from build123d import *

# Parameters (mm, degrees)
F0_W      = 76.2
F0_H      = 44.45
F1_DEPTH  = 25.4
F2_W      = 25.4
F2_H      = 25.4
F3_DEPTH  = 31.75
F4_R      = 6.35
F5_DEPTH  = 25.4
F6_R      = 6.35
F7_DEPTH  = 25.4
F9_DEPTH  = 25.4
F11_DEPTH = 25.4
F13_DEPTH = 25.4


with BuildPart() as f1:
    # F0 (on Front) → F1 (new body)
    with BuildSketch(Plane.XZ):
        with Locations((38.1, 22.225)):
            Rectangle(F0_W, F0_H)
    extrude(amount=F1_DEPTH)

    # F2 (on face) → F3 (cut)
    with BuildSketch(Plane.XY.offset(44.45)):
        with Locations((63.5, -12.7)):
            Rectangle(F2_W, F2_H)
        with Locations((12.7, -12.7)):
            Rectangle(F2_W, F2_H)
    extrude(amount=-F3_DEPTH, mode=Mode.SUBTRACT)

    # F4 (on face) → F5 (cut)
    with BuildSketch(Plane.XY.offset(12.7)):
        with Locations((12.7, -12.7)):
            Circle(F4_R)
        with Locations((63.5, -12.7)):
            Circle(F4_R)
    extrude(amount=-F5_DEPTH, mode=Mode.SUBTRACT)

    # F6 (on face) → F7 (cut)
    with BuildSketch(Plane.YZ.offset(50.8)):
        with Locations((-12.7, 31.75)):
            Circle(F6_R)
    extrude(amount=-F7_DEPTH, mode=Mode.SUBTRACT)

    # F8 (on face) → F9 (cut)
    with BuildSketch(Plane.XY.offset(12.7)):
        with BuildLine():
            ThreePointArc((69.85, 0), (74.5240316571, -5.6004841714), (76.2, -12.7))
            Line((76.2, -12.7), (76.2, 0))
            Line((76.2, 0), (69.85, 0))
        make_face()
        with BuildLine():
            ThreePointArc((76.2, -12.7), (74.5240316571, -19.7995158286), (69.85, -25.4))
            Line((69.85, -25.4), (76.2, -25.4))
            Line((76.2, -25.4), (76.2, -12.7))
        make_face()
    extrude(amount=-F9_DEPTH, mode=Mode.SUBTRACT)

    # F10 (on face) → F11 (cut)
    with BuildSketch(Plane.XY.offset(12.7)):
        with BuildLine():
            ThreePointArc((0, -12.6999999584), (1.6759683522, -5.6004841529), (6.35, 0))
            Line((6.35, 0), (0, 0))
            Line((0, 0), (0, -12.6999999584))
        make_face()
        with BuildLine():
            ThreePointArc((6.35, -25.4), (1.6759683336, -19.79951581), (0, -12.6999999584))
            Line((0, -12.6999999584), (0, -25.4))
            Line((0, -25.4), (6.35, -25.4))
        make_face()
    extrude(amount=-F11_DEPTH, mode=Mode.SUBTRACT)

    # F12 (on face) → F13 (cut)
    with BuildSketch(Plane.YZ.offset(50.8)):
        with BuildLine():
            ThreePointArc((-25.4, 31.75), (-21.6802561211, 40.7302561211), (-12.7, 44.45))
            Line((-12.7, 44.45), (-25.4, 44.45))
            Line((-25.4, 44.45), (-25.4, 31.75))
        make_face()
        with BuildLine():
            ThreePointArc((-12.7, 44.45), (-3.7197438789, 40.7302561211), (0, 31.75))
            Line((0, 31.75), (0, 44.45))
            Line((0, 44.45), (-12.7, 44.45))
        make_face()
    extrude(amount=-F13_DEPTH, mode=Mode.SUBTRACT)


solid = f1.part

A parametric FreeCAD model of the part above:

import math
import FreeCAD as App
import Part
import Sketcher
from FreeCAD import Vector
Q = App.Units.Quantity


def add_polygon(sketch, points):
    """Adds a closed chain of lines whose ends are joined by coincident constraints."""
    first, n = sketch.GeometryCount, len(points)
    for a, b in zip(points, points[1:] + points[:1]):
        sketch.addGeometry(Part.LineSegment(App.Vector(*a, 0), App.Vector(*b, 0)), False)
    for i in range(n):
        sketch.addConstraint(Sketcher.Constraint("Coincident", first + i, 2, first + (i + 1) % n, 1))

doc = App.newDocument("Part")
params = doc.addObject("Spreadsheet::Sheet", "Params")
for row, (alias, value) in enumerate([
    ("sketch1_width", "3 in"),
    ("sketch1_height", "1.75 in"),
    ("pad1_length", "1 in"),
    ("sketch2_width", "1 in"),
    ("pocket1_length", "1.25 in"),
    ("sketch3_diameter", "0.5 in"),
    ("pocket2_length", "1 in"),
    ("sketch4_diameter", "0.5 in"),
    ("pocket3_length", "1 in"),
    ("sketch5_height", "0.5 in"),
    ("sketch5_radius", "0.625 in"),
    ("pocket4_length", "1 in"),
    ("sketch6_height", "0.5 in"),
    ("sketch6_radius", "0.625 in"),
    ("pocket5_length", "1 in"),
    ("sketch7_radius", "0.5 in"),
    ("pocket6_length", "1 in"),
], start=1):
    params.set(f"A{row}", alias)
    params.set(f"B{row}", "=" + value)
    params.setAlias(f"B{row}", alias)

body = doc.addObject("PartDesign::Body", "Body")

# Sketch on XZ plane
sketch1 = body.newObject("Sketcher::SketchObject", "Sketch")
sketch1.AttachmentSupport = (doc.getObject("XZ_Plane"), [""])
sketch1.MapMode = "FlatFace"
add_polygon(sketch1, [(0, 44), (0, 0), (76, 0), (76, 44)])  # lines 0-3
sketch1.addConstraint(Sketcher.Constraint("Vertical", 0))
sketch1.addConstraint(Sketcher.Constraint("Horizontal", 1))
sketch1.addConstraint(Sketcher.Constraint("Vertical", 2))
sketch1.addConstraint(Sketcher.Constraint("Horizontal", 3))
sketch1.addConstraint(Sketcher.Constraint("Coincident", 0, 2, -1, 1))
sketch1.addConstraint(Sketcher.Constraint("DistanceX", 1, 1, 1, 2, Q("3 in")))
sketch1.addConstraint(Sketcher.Constraint("DistanceY", 0, 2, 0, 1, Q("1.75 in")))
sketch1.setExpression("Constraints[9]", "Params.sketch1_width")
sketch1.setExpression("Constraints[10]", "Params.sketch1_height")
pad1 = body.newObject("PartDesign::Pad", "Pad")
pad1.Profile = sketch1
pad1.setExpression("Length", "Params.pad1_length")

# Sketch on XY plane
sketch2 = body.newObject("Sketcher::SketchObject", "Sketch001")
sketch2.AttachmentSupport = (doc.getObject("XY_Plane"), [""])
sketch2.MapMode = "FlatFace"
sketch2.AttachmentOffset = App.Placement(Vector(0, 0, 1.75 * 25.4), App.Rotation())
add_polygon(sketch2, [(51, 0), (51, -25), (76, -25), (76, 0)])  # lines 0-3
add_polygon(sketch2, [(0, 0), (0, -25), (25, -25), (25, 0)])  # lines 4-7
sketch2.addConstraint(Sketcher.Constraint("Vertical", 0))
sketch2.addConstraint(Sketcher.Constraint("Horizontal", 1))
sketch2.addConstraint(Sketcher.Constraint("Vertical", 2))
sketch2.addConstraint(Sketcher.Constraint("Horizontal", 3))
sketch2.addConstraint(Sketcher.Constraint("Vertical", 4))
sketch2.addConstraint(Sketcher.Constraint("Horizontal", 5))
sketch2.addConstraint(Sketcher.Constraint("Vertical", 6))
sketch2.addConstraint(Sketcher.Constraint("Horizontal", 7))
sketch2.addConstraint(Sketcher.Constraint("Coincident", 7, 2, -1, 1))
sketch2.addConstraint(Sketcher.Constraint("PointOnObject", 2, 2, -1))
sketch2.addConstraint(Sketcher.Constraint("Horizontal", 1, 2, 4, 2))
sketch2.addConstraint(Sketcher.Constraint("Equal", 3, 5))
sketch2.addConstraint(Sketcher.Constraint("Equal", 7, 0))
sketch2.addConstraint(Sketcher.Constraint("DistanceX", 1, 1, 1, 2, Q("1 in")))
sketch2.addConstraint(Sketcher.Constraint("DistanceX", -1, 1, 0, 2, Q("2 in")))
sketch2.setExpression("Constraints[21]", "Params.sketch2_width")
pocket1 = body.newObject("PartDesign::Pocket", "Pocket")
pocket1.Profile = sketch2
pocket1.setExpression("Length", "Params.pocket1_length")

# Sketch on XY plane
sketch3 = body.newObject("Sketcher::SketchObject", "Sketch002")
sketch3.AttachmentSupport = (doc.getObject("XY_Plane"), [""])
sketch3.MapMode = "FlatFace"
sketch3.AttachmentOffset = App.Placement(Vector(0, 0, 0.5 * 25.4), App.Rotation())
sketch3.addGeometry(Part.Circle(Vector(13, -13, 0), Vector(0, 0, 1), 6), False)
sketch3.addGeometry(Part.Circle(Vector(64, -13, 0), Vector(0, 0, 1), 6), False)
sketch3.addConstraint(Sketcher.Constraint("Equal", 0, 1))
sketch3.addConstraint(Sketcher.Constraint("Horizontal", 0, 3, 1, 3))
sketch3.addConstraint(Sketcher.Constraint("Diameter", 0, Q("0.5 in")))
sketch3.addConstraint(Sketcher.Constraint("DistanceX", 0, 3, 1, 3, Q("2 in")))
sketch3.addConstraint(Sketcher.Constraint("DistanceX", -1, 1, 0, 3, Q("0.5 in")))
sketch3.addConstraint(Sketcher.Constraint("DistanceY", 0, 3, -1, 1, Q("0.5 in")))
sketch3.setExpression("Constraints[2]", "Params.sketch3_diameter")
pocket2 = body.newObject("PartDesign::Pocket", "Pocket001")
pocket2.Profile = sketch3
pocket2.setExpression("Length", "Params.pocket2_length")

# Sketch on YZ plane
sketch4 = body.newObject("Sketcher::SketchObject", "Sketch003")
sketch4.AttachmentSupport = (doc.getObject("YZ_Plane"), [""])
sketch4.MapMode = "FlatFace"
sketch4.AttachmentOffset = App.Placement(Vector(0, 0, 2 * 25.4), App.Rotation())
sketch4.addGeometry(Part.Circle(Vector(-13, 32, 0), Vector(0, 0, 1), 6), False)
sketch4.addConstraint(Sketcher.Constraint("Diameter", 0, Q("0.5 in")))
sketch4.addConstraint(Sketcher.Constraint("DistanceX", 0, 3, -1, 1, Q("0.5 in")))
sketch4.addConstraint(Sketcher.Constraint("DistanceY", -1, 1, 0, 3, Q("1.25 in")))
sketch4.setExpression("Constraints[0]", "Params.sketch4_diameter")
pocket3 = body.newObject("PartDesign::Pocket", "Pocket002")
pocket3.Profile = sketch4
pocket3.setExpression("Length", "Params.pocket3_length")

# Sketch on XY plane
sketch5 = body.newObject("Sketcher::SketchObject", "Sketch004")
sketch5.AttachmentSupport = (doc.getObject("XY_Plane"), [""])
sketch5.MapMode = "FlatFace"
sketch5.AttachmentOffset = App.Placement(Vector(0, 0, 0.5 * 25.4), App.Rotation())
sketch5.addGeometry(Part.ArcOfCircle(Part.Circle(Vector(60, -13, 0), Vector(0, 0, 1), 16), math.radians(0), math.radians(53)), False)
sketch5.addGeometry(Part.LineSegment(Vector(76, -13, 0), Vector(76, 0, 0)), False)
sketch5.addGeometry(Part.LineSegment(Vector(76, 0, 0), Vector(70, 0, 0)), False)
sketch5.addGeometry(Part.ArcOfCircle(Part.Circle(Vector(60, -13, 0), Vector(0, 0, 1), 16), math.radians(-53), math.radians(0)), False)
sketch5.addGeometry(Part.LineSegment(Vector(70, -25, 0), Vector(76, -25, 0)), False)
sketch5.addGeometry(Part.LineSegment(Vector(76, -25, 0), Vector(76, -13, 0)), False)
sketch5.addConstraint(Sketcher.Constraint("Tangent", 0, 1, 1, 1))
sketch5.addConstraint(Sketcher.Constraint("Coincident", 1, 2, 2, 1))
sketch5.addConstraint(Sketcher.Constraint("Coincident", 2, 2, 0, 2))
sketch5.addConstraint(Sketcher.Constraint("Coincident", 3, 1, 4, 1))
sketch5.addConstraint(Sketcher.Constraint("Coincident", 4, 2, 5, 1))
sketch5.addConstraint(Sketcher.Constraint("Tangent", 5, 2, 3, 2))
sketch5.addConstraint(Sketcher.Constraint("Vertical", 1))
sketch5.addConstraint(Sketcher.Constraint("Horizontal", 2))
sketch5.addConstraint(Sketcher.Constraint("Horizontal", 4))
sketch5.addConstraint(Sketcher.Constraint("Vertical", 5))
sketch5.addConstraint(Sketcher.Constraint("Coincident", 3, 3, 0, 3))
sketch5.addConstraint(Sketcher.Constraint("Equal", 0, 3))
sketch5.addConstraint(Sketcher.Constraint("PointOnObject", 1, 2, -1))
sketch5.addConstraint(Sketcher.Constraint("Vertical", 2, 2, 3, 1))
sketch5.addConstraint(Sketcher.Constraint("DistanceY", 1, 1, 1, 2, Q("0.5 in")))
sketch5.addConstraint(Sketcher.Constraint("DistanceX", -1, 1, 0, 1, Q("3 in")))
sketch5.addConstraint(Sketcher.Constraint("Radius", 0, Q("0.625 in")))
sketch5.setExpression("Constraints[14]", "Params.sketch5_height")
sketch5.setExpression("Constraints[16]", "Params.sketch5_radius")
pocket4 = body.newObject("PartDesign::Pocket", "Pocket003")
pocket4.Profile = sketch5
pocket4.setExpression("Length", "Params.pocket4_length")

# Sketch on XY plane
sketch6 = body.newObject("Sketcher::SketchObject", "Sketch005")
sketch6.AttachmentSupport = (doc.getObject("XY_Plane"), [""])
sketch6.MapMode = "FlatFace"
sketch6.AttachmentOffset = App.Placement(Vector(0, 0, 0.5 * 25.4), App.Rotation())
sketch6.addGeometry(Part.ArcOfCircle(Part.Circle(Vector(16, -13, 0), Vector(0, 0, 1), 16), math.radians(127), math.radians(180)), False)
sketch6.addGeometry(Part.LineSegment(Vector(6, 0, 0), Vector(0, 0, 0)), False)
sketch6.addGeometry(Part.LineSegment(Vector(0, 0, 0), Vector(0, -13, 0)), False)
sketch6.addGeometry(Part.ArcOfCircle(Part.Circle(Vector(16, -13, 0), Vector(0, 0, 1), 16), math.radians(180), math.radians(233)), False)
sketch6.addGeometry(Part.LineSegment(Vector(0, -13, 0), Vector(0, -25, 0)), False)
sketch6.addGeometry(Part.LineSegment(Vector(0, -25, 0), Vector(6, -25, 0)), False)
sketch6.addConstraint(Sketcher.Constraint("Coincident", 0, 1, 1, 1))
sketch6.addConstraint(Sketcher.Constraint("Coincident", 1, 2, 2, 1))
sketch6.addConstraint(Sketcher.Constraint("Tangent", 2, 2, 0, 2))
sketch6.addConstraint(Sketcher.Constraint("Tangent", 3, 1, 4, 1))
sketch6.addConstraint(Sketcher.Constraint("Coincident", 4, 2, 5, 1))
sketch6.addConstraint(Sketcher.Constraint("Coincident", 5, 2, 3, 2))
sketch6.addConstraint(Sketcher.Constraint("Horizontal", 1))
sketch6.addConstraint(Sketcher.Constraint("Vertical", 2))
sketch6.addConstraint(Sketcher.Constraint("Vertical", 4))
sketch6.addConstraint(Sketcher.Constraint("Horizontal", 5))
sketch6.addConstraint(Sketcher.Constraint("Coincident", 1, 2, -1, 1))
sketch6.addConstraint(Sketcher.Constraint("Coincident", 3, 3, 0, 3))
sketch6.addConstraint(Sketcher.Constraint("Equal", 0, 3))
sketch6.addConstraint(Sketcher.Constraint("Vertical", 0, 1, 5, 2))
sketch6.addConstraint(Sketcher.Constraint("DistanceY", 2, 2, 2, 1, Q("0.5 in")))
sketch6.addConstraint(Sketcher.Constraint("Radius", 0, Q("0.625 in")))
sketch6.setExpression("Constraints[14]", "Params.sketch6_height")
sketch6.setExpression("Constraints[15]", "Params.sketch6_radius")
pocket5 = body.newObject("PartDesign::Pocket", "Pocket004")
pocket5.Profile = sketch6
pocket5.setExpression("Length", "Params.pocket5_length")

# Sketch on YZ plane
sketch7 = body.newObject("Sketcher::SketchObject", "Sketch006")
sketch7.AttachmentSupport = (doc.getObject("YZ_Plane"), [""])
sketch7.MapMode = "FlatFace"
sketch7.AttachmentOffset = App.Placement(Vector(0, 0, 2 * 25.4), App.Rotation())
sketch7.addGeometry(Part.ArcOfCircle(Part.Circle(Vector(-13, 32, 0), Vector(0, 0, 1), 13), math.radians(90), math.radians(180)), False)
sketch7.addGeometry(Part.LineSegment(Vector(-13, 44, 0), Vector(-25, 44, 0)), False)
sketch7.addGeometry(Part.LineSegment(Vector(-25, 44, 0), Vector(-25, 32, 0)), False)
sketch7.addGeometry(Part.ArcOfCircle(Part.Circle(Vector(-13, 32, 0), Vector(0, 0, 1), 13), math.radians(0), math.radians(90)), False)
sketch7.addGeometry(Part.LineSegment(Vector(0, 32, 0), Vector(0, 44, 0)), False)
sketch7.addGeometry(Part.LineSegment(Vector(0, 44, 0), Vector(-13, 44, 0)), False)
sketch7.addConstraint(Sketcher.Constraint("Tangent", 0, 1, 1, 1))
sketch7.addConstraint(Sketcher.Constraint("Coincident", 1, 2, 2, 1))
sketch7.addConstraint(Sketcher.Constraint("Tangent", 2, 2, 0, 2))
sketch7.addConstraint(Sketcher.Constraint("Tangent", 3, 1, 4, 1))
sketch7.addConstraint(Sketcher.Constraint("Coincident", 4, 2, 5, 1))
sketch7.addConstraint(Sketcher.Constraint("Tangent", 5, 2, 3, 2))
sketch7.addConstraint(Sketcher.Constraint("Horizontal", 1))
sketch7.addConstraint(Sketcher.Constraint("Vertical", 2))
sketch7.addConstraint(Sketcher.Constraint("Vertical", 4))
sketch7.addConstraint(Sketcher.Constraint("Horizontal", 5))
sketch7.addConstraint(Sketcher.Constraint("Coincident", 3, 3, 0, 3))
sketch7.addConstraint(Sketcher.Constraint("Equal", 0, 3))
sketch7.addConstraint(Sketcher.Constraint("PointOnObject", 3, 1, -2))
sketch7.addConstraint(Sketcher.Constraint("Radius", 0, Q("0.5 in")))
sketch7.addConstraint(Sketcher.Constraint("DistanceY", -1, 1, 0, 3, Q("1.25 in")))
sketch7.setExpression("Constraints[13]", "Params.sketch7_radius")
pocket6 = body.newObject("PartDesign::Pocket", "Pocket005")
pocket6.Profile = sketch7
pocket6.setExpression("Length", "Params.pocket6_length")

doc.recompute()
